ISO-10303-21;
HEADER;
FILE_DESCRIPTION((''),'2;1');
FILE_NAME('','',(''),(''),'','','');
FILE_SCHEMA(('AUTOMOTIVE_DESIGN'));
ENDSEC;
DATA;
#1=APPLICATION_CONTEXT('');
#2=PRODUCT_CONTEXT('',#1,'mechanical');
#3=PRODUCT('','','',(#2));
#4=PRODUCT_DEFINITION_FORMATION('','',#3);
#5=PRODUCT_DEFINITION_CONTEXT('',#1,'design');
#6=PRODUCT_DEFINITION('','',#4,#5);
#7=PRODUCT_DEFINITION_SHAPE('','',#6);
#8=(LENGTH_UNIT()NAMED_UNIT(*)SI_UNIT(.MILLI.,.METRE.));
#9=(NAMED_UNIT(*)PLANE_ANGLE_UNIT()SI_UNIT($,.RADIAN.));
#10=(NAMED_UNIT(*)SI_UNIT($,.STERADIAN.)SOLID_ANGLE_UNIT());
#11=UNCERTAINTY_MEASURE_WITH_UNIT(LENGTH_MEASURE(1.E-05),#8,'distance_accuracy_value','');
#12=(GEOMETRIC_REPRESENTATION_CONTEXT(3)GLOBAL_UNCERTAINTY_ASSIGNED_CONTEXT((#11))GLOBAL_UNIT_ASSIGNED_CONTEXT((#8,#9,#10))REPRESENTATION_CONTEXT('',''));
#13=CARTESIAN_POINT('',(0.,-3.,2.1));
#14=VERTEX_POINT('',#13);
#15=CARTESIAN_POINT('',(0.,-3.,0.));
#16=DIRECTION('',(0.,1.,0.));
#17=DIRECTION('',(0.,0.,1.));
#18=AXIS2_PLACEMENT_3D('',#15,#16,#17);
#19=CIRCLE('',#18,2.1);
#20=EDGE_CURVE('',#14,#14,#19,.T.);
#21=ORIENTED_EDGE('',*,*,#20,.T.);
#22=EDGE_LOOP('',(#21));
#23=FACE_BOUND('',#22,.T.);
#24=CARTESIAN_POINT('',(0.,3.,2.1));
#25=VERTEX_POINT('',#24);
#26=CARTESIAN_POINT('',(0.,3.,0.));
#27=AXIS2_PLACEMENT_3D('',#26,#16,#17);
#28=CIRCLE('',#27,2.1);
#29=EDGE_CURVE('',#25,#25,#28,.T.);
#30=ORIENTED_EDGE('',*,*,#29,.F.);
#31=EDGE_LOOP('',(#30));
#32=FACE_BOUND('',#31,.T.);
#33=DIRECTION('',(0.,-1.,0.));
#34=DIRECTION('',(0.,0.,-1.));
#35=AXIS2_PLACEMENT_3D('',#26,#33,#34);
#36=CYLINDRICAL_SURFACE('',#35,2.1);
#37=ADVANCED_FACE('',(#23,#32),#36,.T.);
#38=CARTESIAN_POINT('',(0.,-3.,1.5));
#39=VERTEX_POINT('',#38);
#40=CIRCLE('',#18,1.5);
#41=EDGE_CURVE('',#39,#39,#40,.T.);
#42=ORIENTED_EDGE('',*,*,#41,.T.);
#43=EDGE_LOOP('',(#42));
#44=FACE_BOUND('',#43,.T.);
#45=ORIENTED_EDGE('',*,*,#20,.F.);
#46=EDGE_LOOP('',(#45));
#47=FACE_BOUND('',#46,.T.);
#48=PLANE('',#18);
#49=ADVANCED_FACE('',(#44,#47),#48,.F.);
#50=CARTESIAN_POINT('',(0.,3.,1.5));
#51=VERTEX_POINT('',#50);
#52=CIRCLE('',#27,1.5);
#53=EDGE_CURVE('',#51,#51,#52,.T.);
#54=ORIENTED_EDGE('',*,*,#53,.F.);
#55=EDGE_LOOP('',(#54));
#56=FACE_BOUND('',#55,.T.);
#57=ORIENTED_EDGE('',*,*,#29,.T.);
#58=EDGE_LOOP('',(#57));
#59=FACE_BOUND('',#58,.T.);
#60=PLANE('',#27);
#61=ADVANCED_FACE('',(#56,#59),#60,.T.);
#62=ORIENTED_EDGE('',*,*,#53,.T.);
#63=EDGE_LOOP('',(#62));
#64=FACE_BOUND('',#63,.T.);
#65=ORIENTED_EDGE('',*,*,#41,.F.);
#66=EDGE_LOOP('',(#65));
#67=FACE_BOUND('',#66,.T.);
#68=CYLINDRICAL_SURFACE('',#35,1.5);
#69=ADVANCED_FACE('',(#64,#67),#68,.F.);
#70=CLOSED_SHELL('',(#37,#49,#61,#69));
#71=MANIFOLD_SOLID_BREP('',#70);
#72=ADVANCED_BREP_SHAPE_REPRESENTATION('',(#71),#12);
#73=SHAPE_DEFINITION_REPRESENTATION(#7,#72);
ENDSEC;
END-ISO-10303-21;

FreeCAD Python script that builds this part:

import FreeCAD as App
import Part
import Sketcher

V = App.Vector

doc = App.newDocument("Part")
body = doc.addObject("PartDesign::Body", "Body")

sketch1 = body.newObject("Sketcher::SketchObject", "Sketch")
sketch1.AttachmentSupport = (doc.getObject("XZ_Plane"), [""])
sketch1.MapMode = "FlatFace"
sketch1.addGeometry([
    Part.Circle(V(0, 0, 0), V(0, 0, 1), 2.1),
    Part.Circle(V(0, 0, 0), V(0, 0, 1), 1.5),
], False)
sketch1.addConstraint([
    Sketcher.Constraint("Coincident", 0, 3, -1, 1),
    Sketcher.Constraint("Coincident", 1, 3, -1, 1),
    Sketcher.Constraint("Diameter", 1, 3.0),
    Sketcher.Constraint("Diameter", 0, 4.2),
])
pad1 = body.newObject("PartDesign::Pad", "Pad")
pad1.Profile = sketch1
pad1.Length = 6
pad1.Midplane = True

doc.recompute()
